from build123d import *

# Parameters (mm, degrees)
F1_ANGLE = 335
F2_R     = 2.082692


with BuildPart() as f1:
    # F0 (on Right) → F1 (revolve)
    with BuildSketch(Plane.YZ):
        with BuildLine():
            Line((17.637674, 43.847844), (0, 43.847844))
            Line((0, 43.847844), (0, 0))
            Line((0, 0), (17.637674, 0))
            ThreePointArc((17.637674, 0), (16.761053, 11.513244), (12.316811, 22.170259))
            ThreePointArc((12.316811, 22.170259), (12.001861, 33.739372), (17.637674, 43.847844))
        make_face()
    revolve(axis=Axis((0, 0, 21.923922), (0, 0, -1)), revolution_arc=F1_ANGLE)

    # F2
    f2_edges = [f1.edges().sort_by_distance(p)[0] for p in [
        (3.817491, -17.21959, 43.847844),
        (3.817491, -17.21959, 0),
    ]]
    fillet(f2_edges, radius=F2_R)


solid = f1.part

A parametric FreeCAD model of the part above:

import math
import FreeCAD as App
import Part
import Sketcher
from FreeCAD import Vector
Q = App.Units.Quantity


def edges_at(feature, points):
    """Names of the edges that pass closest to the given points."""
    edges = feature.Shape.Edges
    near = lambda p: min(range(len(edges)), key=lambda i: edges[i].distToShape(Part.Vertex(*p))[0])
    return sorted({f"Edge{near(p) + 1}" for p in points})

doc = App.newDocument("Part")
body = doc.addObject("PartDesign::Body", "Body")

sketch1 = doc.addObject("Sketcher::SketchObject", "Sketch")
body.addObject(sketch1)
sketch1.AttachmentSupport = (doc.YZ_Plane, [""])
sketch1.MapMode = "FlatFace"
sketch1.addGeometry([
    Part.LineSegment(Vector(17.637674, 43.847844, 0), Vector(0, 43.847844, 0)),
    Part.LineSegment(Vector(0, 43.847844, 0), Vector(0, 0, 0)),
    Part.LineSegment(Vector(0, 0, 0), Vector(17.637674, 0, 0)),
    Part.ArcOfCircle(Part.Circle(Vector(-18.574, 3.03283, 0), Vector(0, 0, 1), 36.338456), math.radians(-4.78751), math.radians(31.778981)),
    Part.ArcOfCircle(Part.Circle(Vector(33.231462, 28.528469, 0), Vector(0, 0, 1), 21.859768), math.radians(135.508596), math.radians(196.909664)),
], False)
sketch1.addConstraint([
    Sketcher.Constraint("Coincident", 0, 2, 1, 1),
    Sketcher.Constraint("Coincident", 1, 2, 2, 1),
    Sketcher.Constraint("Coincident", 2, 2, 3, 1),
    Sketcher.Constraint("Coincident", 3, 2, 4, 2),
    Sketcher.Constraint("Coincident", 4, 1, 0, 1),
    Sketcher.Constraint("Horizontal", 0),
    Sketcher.Constraint("Vertical", 1),
    Sketcher.Constraint("Horizontal", 2),
    Sketcher.Constraint("Coincident", 1, 2, -1, 1),
    Sketcher.Constraint("Vertical", 2, 2, 4, 1),
    Sketcher.Constraint("Radius", 4, Q("21.859768 mm")),
    Sketcher.Constraint("DistanceX", 3, 3, -1, 1, Q("18.574 mm")),
    Sketcher.Constraint("Radius", 3, Q("36.338456 mm")),
    Sketcher.Constraint("DistanceX", 0, 2, 0, 1, Q("17.637674 mm")),
    Sketcher.Constraint("DistanceY", 1, 2, 1, 1, Q("43.847844 mm")),
    Sketcher.Constraint("DistanceX", -1, 1, 4, 3, Q("33.231462 mm")),
])
revolution = doc.addObject("PartDesign::Revolution", "Revolution")
body.addObject(revolution)
revolution.Profile = sketch1
revolution.ReferenceAxis = (sketch1, ["V_Axis"])
revolution.Angle = 335
revolution.Reversed = True
doc.recompute()

fillet = doc.addObject("PartDesign::Fillet", "Fillet")
body.addObject(fillet)
fillet.Base = (revolution, edges_at(revolution, [(3.817, -17.22, 43.848), (3.817, -17.22, 0)]))
fillet.Radius = 2.082692

doc.recompute()
